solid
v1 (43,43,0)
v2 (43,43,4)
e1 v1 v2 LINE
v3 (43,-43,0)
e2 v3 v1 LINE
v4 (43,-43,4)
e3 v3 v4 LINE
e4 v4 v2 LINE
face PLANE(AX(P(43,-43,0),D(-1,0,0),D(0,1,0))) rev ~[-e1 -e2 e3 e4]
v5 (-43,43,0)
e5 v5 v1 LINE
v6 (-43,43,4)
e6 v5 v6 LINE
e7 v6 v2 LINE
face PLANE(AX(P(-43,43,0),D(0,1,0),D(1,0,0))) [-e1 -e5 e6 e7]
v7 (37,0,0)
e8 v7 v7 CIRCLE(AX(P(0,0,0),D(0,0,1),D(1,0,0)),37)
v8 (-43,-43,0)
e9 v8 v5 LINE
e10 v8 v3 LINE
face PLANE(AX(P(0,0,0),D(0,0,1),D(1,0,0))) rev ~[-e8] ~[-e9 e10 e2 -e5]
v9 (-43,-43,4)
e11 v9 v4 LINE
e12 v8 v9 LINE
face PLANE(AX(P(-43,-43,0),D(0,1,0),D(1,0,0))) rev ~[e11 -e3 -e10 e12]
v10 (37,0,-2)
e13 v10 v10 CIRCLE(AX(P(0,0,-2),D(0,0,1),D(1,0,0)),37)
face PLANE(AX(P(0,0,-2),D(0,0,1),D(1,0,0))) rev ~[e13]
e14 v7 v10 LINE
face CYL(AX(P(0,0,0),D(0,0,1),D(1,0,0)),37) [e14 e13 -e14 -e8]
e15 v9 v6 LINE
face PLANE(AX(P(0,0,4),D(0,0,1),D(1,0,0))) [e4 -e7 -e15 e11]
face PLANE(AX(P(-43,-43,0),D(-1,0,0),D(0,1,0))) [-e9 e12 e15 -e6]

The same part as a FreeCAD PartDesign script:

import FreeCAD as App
import Part
import Sketcher
from FreeCAD import Vector

doc = App.newDocument("Part")
body = doc.addObject("PartDesign::Body", "Body")

# Sketch on XY plane
sketch1 = body.newObject("Sketcher::SketchObject", "Sketch")
sketch1.AttachmentSupport = (doc.getObject("XY_Plane"), [""])
sketch1.MapMode = "FlatFace"
sketch1.addGeometry(Part.Circle(Vector(0, 0, 0), Vector(0, 0, 1), 37), False)
sketch1.addConstraint(Sketcher.Constraint("Coincident", 0, 3, -1, 1))
sketch1.addConstraint(Sketcher.Constraint("Diameter", 0, 74.0))
pad1 = body.newObject("PartDesign::Pad", "Pad")
pad1.Profile = sketch1
pad1.Length = 2
pad1.Reversed = True

# Sketch on XY plane
sketch2 = body.newObject("Sketcher::SketchObject", "Sketch001")
sketch2.AttachmentSupport = (doc.getObject("XY_Plane"), [""])
sketch2.MapMode = "FlatFace"
sketch2.addGeometry(Part.LineSegment(Vector(-43, 43, 0), Vector(-43, -43, 0)), False)
sketch2.addGeometry(Part.LineSegment(Vector(-43, -43, 0), Vector(43, -43, 0)), False)
sketch2.addGeometry(Part.LineSegment(Vector(43, -43, 0), Vector(43, 43, 0)), False)
sketch2.addGeometry(Part.LineSegment(Vector(43, 43, 0), Vector(-43, 43, 0)), False)
sketch2.addConstraint(Sketcher.Constraint("Coincident", 0, 2, 1, 1))
sketch2.addConstraint(Sketcher.Constraint("Coincident", 1, 2, 2, 1))
sketch2.addConstraint(Sketcher.Constraint("Coincident", 2, 2, 3, 1))
sketch2.addConstraint(Sketcher.Constraint("Coincident", 3, 2, 0, 1))
sketch2.addConstraint(Sketcher.Constraint("Vertical", 0))
sketch2.addConstraint(Sketcher.Constraint("Horizontal", 1))
sketch2.addConstraint(Sketcher.Constraint("Vertical", 2))
sketch2.addConstraint(Sketcher.Constraint("Horizontal", 3))
sketch2.addConstraint(Sketcher.Constraint("Symmetric", 0, 2, 2, 2, -1, 1))
sketch2.addConstraint(Sketcher.Constraint("Equal", 3, 0))
sketch2.addConstraint(Sketcher.Constraint("DistanceX", 1, 1, 1, 2, 86.0))
pad2 = body.newObject("PartDesign::Pad", "Pad001")
pad2.Profile = sketch2
pad2.Length = 4

doc.recompute()
